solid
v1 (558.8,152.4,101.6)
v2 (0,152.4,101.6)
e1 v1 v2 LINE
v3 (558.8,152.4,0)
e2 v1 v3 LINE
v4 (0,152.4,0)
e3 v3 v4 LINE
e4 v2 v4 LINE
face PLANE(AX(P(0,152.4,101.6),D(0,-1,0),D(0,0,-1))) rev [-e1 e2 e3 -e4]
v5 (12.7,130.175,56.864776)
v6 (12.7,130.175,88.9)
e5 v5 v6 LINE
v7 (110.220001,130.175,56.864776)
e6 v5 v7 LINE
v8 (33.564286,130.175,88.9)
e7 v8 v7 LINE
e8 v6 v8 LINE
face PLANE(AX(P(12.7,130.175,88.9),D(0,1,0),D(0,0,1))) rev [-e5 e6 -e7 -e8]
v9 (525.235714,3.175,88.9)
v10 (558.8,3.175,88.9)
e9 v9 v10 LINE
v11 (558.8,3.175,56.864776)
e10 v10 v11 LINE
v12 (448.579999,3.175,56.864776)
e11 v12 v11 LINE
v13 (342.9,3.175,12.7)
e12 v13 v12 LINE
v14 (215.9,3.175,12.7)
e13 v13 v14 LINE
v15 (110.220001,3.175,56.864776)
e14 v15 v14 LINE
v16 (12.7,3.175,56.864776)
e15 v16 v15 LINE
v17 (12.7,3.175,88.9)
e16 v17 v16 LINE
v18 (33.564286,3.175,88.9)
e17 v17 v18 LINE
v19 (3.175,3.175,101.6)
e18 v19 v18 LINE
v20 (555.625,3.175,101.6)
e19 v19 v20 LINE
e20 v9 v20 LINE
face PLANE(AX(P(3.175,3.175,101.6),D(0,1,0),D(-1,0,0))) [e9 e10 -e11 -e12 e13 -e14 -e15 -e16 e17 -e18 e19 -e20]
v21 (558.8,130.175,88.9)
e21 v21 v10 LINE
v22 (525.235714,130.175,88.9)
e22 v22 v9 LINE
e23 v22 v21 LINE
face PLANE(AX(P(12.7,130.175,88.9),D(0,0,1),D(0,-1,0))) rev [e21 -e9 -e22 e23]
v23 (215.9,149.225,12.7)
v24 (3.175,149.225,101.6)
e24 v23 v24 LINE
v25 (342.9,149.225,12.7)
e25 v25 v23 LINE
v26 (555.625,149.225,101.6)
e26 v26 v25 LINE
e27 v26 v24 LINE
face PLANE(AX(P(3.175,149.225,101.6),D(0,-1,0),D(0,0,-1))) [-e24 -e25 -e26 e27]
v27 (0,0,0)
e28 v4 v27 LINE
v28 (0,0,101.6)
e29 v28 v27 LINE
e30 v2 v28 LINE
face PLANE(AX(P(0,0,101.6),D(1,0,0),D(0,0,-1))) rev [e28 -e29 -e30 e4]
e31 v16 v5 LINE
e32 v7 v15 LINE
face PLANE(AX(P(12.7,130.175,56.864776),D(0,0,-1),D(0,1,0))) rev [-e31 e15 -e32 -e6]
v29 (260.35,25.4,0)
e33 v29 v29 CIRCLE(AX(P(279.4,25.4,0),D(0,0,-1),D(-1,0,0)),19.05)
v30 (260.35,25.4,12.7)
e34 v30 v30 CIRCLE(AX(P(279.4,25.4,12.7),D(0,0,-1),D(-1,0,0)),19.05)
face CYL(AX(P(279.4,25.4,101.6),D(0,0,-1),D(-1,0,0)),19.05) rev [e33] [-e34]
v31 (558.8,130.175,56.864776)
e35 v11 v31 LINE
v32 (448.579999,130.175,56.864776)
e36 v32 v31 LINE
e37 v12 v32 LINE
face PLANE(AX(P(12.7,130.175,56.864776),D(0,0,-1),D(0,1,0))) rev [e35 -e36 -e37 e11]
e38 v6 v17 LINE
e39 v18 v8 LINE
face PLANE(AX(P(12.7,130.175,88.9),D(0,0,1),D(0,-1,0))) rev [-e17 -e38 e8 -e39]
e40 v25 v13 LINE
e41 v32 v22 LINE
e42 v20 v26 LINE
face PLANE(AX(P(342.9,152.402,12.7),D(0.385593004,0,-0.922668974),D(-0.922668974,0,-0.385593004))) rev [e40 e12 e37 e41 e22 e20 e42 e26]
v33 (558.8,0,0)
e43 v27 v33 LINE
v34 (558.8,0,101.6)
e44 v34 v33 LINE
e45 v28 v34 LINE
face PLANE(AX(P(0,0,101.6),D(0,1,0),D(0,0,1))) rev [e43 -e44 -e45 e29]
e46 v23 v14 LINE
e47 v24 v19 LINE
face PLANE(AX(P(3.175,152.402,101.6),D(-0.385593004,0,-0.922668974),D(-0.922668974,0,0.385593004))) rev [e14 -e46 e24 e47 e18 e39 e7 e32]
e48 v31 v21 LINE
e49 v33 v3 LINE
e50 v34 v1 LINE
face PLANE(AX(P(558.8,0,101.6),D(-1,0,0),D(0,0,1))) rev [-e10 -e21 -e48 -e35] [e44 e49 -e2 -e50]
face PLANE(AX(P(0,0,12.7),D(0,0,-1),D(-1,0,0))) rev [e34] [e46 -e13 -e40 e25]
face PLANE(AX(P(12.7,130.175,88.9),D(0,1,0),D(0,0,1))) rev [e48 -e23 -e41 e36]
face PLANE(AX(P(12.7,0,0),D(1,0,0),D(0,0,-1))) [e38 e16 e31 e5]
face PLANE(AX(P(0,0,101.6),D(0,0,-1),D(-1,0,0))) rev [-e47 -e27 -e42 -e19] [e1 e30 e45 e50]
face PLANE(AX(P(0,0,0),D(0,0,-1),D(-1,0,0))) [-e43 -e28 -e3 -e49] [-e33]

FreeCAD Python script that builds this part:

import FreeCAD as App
import Part
import Sketcher
Q = App.Units.Quantity

doc = App.newDocument("Part")
body = doc.addObject("PartDesign::Body", "Body")

# Sketch on XY plane
sketch1 = body.newObject("Sketcher::SketchObject", "Sketch")
sketch1.AttachmentSupport = (doc.getObject("XY_Plane"), [""])
sketch1.MapMode = "FlatFace"
sketch1.addGeometry(Part.LineSegment(App.Vector(0, 152, 0), App.Vector(0, 0, 0)), False)
sketch1.addGeometry(Part.LineSegment(App.Vector(0, 0, 0), App.Vector(559, 0, 0)), False)
sketch1.addGeometry(Part.LineSegment(App.Vector(559, 0, 0), App.Vector(559, 152, 0)), False)
sketch1.addGeometry(Part.LineSegment(App.Vector(559, 152, 0), App.Vector(0, 152, 0)), False)
sketch1.addGeometry(Part.LineSegment(App.Vector(556, 3, 0), App.Vector(3, 3, 0)), False)
sketch1.addGeometry(Part.LineSegment(App.Vector(3, 3, 0), App.Vector(3, 149, 0)), False)
sketch1.addGeometry(Part.LineSegment(App.Vector(3, 149, 0), App.Vector(556, 149, 0)), False)
sketch1.addGeometry(Part.LineSegment(App.Vector(556, 149, 0), App.Vector(556, 3, 0)), False)
sketch1.addConstraint(Sketcher.Constraint("Coincident", 0, 2, 1, 1))
sketch1.addConstraint(Sketcher.Constraint("Coincident", 1, 2, 2, 1))
sketch1.addConstraint(Sketcher.Constraint("Coincident", 2, 2, 3, 1))
sketch1.addConstraint(Sketcher.Constraint("Coincident", 3, 2, 0, 1))
sketch1.addConstraint(Sketcher.Constraint("Coincident", 4, 2, 5, 1))
sketch1.addConstraint(Sketcher.Constraint("Coincident", 5, 2, 6, 1))
sketch1.addConstraint(Sketcher.Constraint("Coincident", 6, 2, 7, 1))
sketch1.addConstraint(Sketcher.Constraint("Coincident", 7, 2, 4, 1))
sketch1.addConstraint(Sketcher.Constraint("Vertical", 0))
sketch1.addConstraint(Sketcher.Constraint("Horizontal", 1))
sketch1.addConstraint(Sketcher.Constraint("Vertical", 2))
sketch1.addConstraint(Sketcher.Constraint("Horizontal", 3))
sketch1.addConstraint(Sketcher.Constraint("Horizontal", 4))
sketch1.addConstraint(Sketcher.Constraint("Vertical", 5))
sketch1.addConstraint(Sketcher.Constraint("Horizontal", 6))
sketch1.addConstraint(Sketcher.Constraint("Vertical", 7))
sketch1.addConstraint(Sketcher.Constraint("Coincident", 0, 2, -1, 1))
sketch1.addConstraint(Sketcher.Constraint("DistanceX", 1, 1, 1, 2, Q("22 in")))
sketch1.addConstraint(Sketcher.Constraint("DistanceY", 0, 2, 0, 1, Q("6 in")))
sketch1.addConstraint(Sketcher.Constraint("DistanceX", 4, 2, 4, 1, Q("21.75 in")))
sketch1.addConstraint(Sketcher.Constraint("DistanceY", 5, 1, 5, 2, Q("5.75 in")))
sketch1.addConstraint(Sketcher.Constraint("DistanceX", -1, 1, 4, 2, Q("0.125 in")))
sketch1.addConstraint(Sketcher.Constraint("DistanceY", -1, 1, 4, 2, Q("0.125 in")))
pad1 = body.newObject("PartDesign::Pad", "Pad")
pad1.Profile = sketch1
pad1.Length = Q("4 in")

# Sketch on XZ plane
sketch2 = body.newObject("Sketcher::SketchObject", "Sketch001")
sketch2.AttachmentSupport = (doc.getObject("XZ_Plane"), [""])
sketch2.MapMode = "FlatFace"
sketch2.AttachmentOffset = App.Placement(App.Vector(0, 0, -0.125 * 25.4), App.Rotation())
sketch2.addGeometry(Part.LineSegment(App.Vector(3, 102, 0), App.Vector(216, 13, 0)), False)
sketch2.addGeometry(Part.LineSegment(App.Vector(216, 13, 0), App.Vector(3, 13, 0)), False)
sketch2.addGeometry(Part.LineSegment(App.Vector(3, 13, 0), App.Vector(3, 102, 0)), False)
sketch2.addConstraint(Sketcher.Constraint("Coincident", 0, 2, 1, 1))
sketch2.addConstraint(Sketcher.Constraint("Coincident", 1, 2, 2, 1))
sketch2.addConstraint(Sketcher.Constraint("Coincident", 2, 2, 0, 1))
sketch2.addConstraint(Sketcher.Constraint("Horizontal", 1))
sketch2.addConstraint(Sketcher.Constraint("Vertical", 2))
sketch2.addConstraint(Sketcher.Constraint("DistanceY", 2, 1, 2, 2, Q("3.5 in")))
sketch2.addConstraint(Sketcher.Constraint("DistanceY", -1, 1, 2, 2, Q("4 in")))
sketch2.addConstraint(Sketcher.Constraint("DistanceX", -1, 1, 0, 2, Q("8.5 in")))
sketch2.addConstraint(Sketcher.Constraint("DistanceX", 1, 2, 1, 1, Q("8.375 in")))
pad2 = body.newObject("PartDesign::Pad", "Pad001")
pad2.Profile = sketch2
pad2.Type = "UpToFirst"
pad2.Reversed = True

# Sketch on XZ plane
sketch3 = body.newObject("Sketcher::SketchObject", "Sketch002")
sketch3.AttachmentSupport = (doc.getObject("XZ_Plane"), [""])
sketch3.MapMode = "FlatFace"
sketch3.AttachmentOffset = App.Placement(App.Vector(0, 0, -0.125 * 25.4), App.Rotation())
sketch3.addGeometry(Part.LineSegment(App.Vector(343, 13, 0), App.Vector(556, 102, 0)), False)
sketch3.addGeometry(Part.LineSegment(App.Vector(556, 102, 0), App.Vector(556, 13, 0)), False)
sketch3.addGeometry(Part.LineSegment(App.Vector(556, 13, 0), App.Vector(343, 13, 0)), False)
sketch3.addConstraint(Sketcher.Constraint("Coincident", 0, 2, 1, 1))
sketch3.addConstraint(Sketcher.Constraint("Coincident", 1, 2, 2, 1))
sketch3.addConstraint(Sketcher.Constraint("Coincident", 2, 2, 0, 1))
sketch3.addConstraint(Sketcher.Constraint("Vertical", 1))
sketch3.addConstraint(Sketcher.Constraint("Horizontal", 2))
sketch3.addConstraint(Sketcher.Constraint("DistanceY", 1, 2, 1, 1, Q("3.5 in")))
sketch3.addConstraint(Sketcher.Constraint("DistanceY", -1, 1, 0, 2, Q("4 in")))
sketch3.addConstraint(Sketcher.Constraint("DistanceX", -1, 1, 2, 2, Q("13.5 in")))
sketch3.addConstraint(Sketcher.Constraint("DistanceX", 2, 2, 2, 1, Q("8.375 in")))
pad3 = body.newObject("PartDesign::Pad", "Pad002")
pad3.Profile = sketch3
pad3.Type = "UpToFirst"
pad3.Reversed = True

# Sketch on XY plane
sketch4 = body.newObject("Sketcher::SketchObject", "Sketch003")
sketch4.AttachmentSupport = (doc.getObject("XY_Plane"), [""])
sketch4.MapMode = "FlatFace"
sketch4.AttachmentOffset = App.Placement(App.Vector(0, 0, 0.5 * 25.4), App.Rotation())
sketch4.addGeometry(Part.LineSegment(App.Vector(556, 149, 0), App.Vector(556, 3, 0)), False)
sketch4.addGeometry(Part.LineSegment(App.Vector(556, 3, 0), App.Vector(3, 3, 0)), False)
sketch4.addGeometry(Part.LineSegment(App.Vector(3, 3, 0), App.Vector(3, 149, 0)), False)
sketch4.addGeometry(Part.LineSegment(App.Vector(3, 149, 0), App.Vector(556, 149, 0)), False)
sketch4.addConstraint(Sketcher.Constraint("Coincident", 0, 2, 1, 1))
sketch4.addConstraint(Sketcher.Constraint("Coincident", 1, 2, 2, 1))
sketch4.addConstraint(Sketcher.Constraint("Coincident", 2, 2, 3, 1))
sketch4.addConstraint(Sketcher.Constraint("Coincident", 3, 2, 0, 1))
sketch4.addConstraint(Sketcher.Constraint("Vertical", 0))
sketch4.addConstraint(Sketcher.Constraint("Horizontal", 1))
sketch4.addConstraint(Sketcher.Constraint("Vertical", 2))
sketch4.addConstraint(Sketcher.Constraint("Horizontal", 3))
sketch4.addConstraint(Sketcher.Constraint("DistanceX", 1, 2, 1, 1, Q("21.75 in")))
sketch4.addConstraint(Sketcher.Constraint("DistanceY", 0, 2, 0, 1, Q("5.75 in")))
sketch4.addConstraint(Sketcher.Constraint("DistanceX", -1, 1, 0, 2, Q("21.875 in")))
sketch4.addConstraint(Sketcher.Constraint("DistanceY", -1, 1, 0, 2, Q("0.125 in")))
pad4 = body.newObject("PartDesign::Pad", "Pad003")
pad4.Profile = sketch4
pad4.Length = Q("0.5 in")
pad4.Reversed = True

# Sketch on XY plane
sketch5 = body.newObject("Sketcher::SketchObject", "Sketch004")
sketch5.AttachmentSupport = (doc.getObject("XY_Plane"), [""])
sketch5.MapMode = "FlatFace"
sketch5.addGeometry(Part.Circle(App.Vector(279, 25, 0), App.Vector(0, 0, 1), 19), False)
sketch5.addConstraint(Sketcher.Constraint("Diameter", 0, Q("1.5 in")))
sketch5.addConstraint(Sketcher.Constraint("DistanceX", -1, 1, 0, 3, Q("11 in")))
sketch5.addConstraint(Sketcher.Constraint("DistanceY", -1, 1, 0, 3, Q("1 in")))
pocket1 = body.newObject("PartDesign::Pocket", "Pocket")
pocket1.Profile = sketch5
pocket1.Type = "ThroughAll"
pocket1.Reversed = True

# Sketch on YZ plane
sketch6 = body.newObject("Sketcher::SketchObject", "Sketch005")
sketch6.AttachmentSupport = (doc.getObject("YZ_Plane"), [""])
sketch6.MapMode = "FlatFace"
sketch6.AttachmentOffset = App.Placement(App.Vector(0, 0, 22 * 25.4), App.Rotation())
sketch6.addGeometry(Part.LineSegment(App.Vector(130, 89, 0), App.Vector(3, 89, 0)), False)
sketch6.addGeometry(Part.LineSegment(App.Vector(3, 89, 0), App.Vector(3, 57, 0)), False)
sketch6.addGeometry(Part.LineSegment(App.Vector(3, 57, 0), App.Vector(130, 57, 0)), False)
sketch6.addGeometry(Part.LineSegment(App.Vector(130, 57, 0), App.Vector(130, 89, 0)), False)
sketch6.addConstraint(Sketcher.Constraint("Coincident", 0, 2, 1, 1))
sketch6.addConstraint(Sketcher.Constraint("Coincident", 1, 2, 2, 1))
sketch6.addConstraint(Sketcher.Constraint("Coincident", 2, 2, 3, 1))
sketch6.addConstraint(Sketcher.Constraint("Coincident", 3, 2, 0, 1))
sketch6.addConstraint(Sketcher.Constraint("Horizontal", 0))
sketch6.addConstraint(Sketcher.Constraint("Vertical", 1))
sketch6.addConstraint(Sketcher.Constraint("Horizontal", 2))
sketch6.addConstraint(Sketcher.Constraint("Vertical", 3))
sketch6.addConstraint(Sketcher.Constraint("DistanceX", 0, 2, 0, 1, Q("5 in")))
sketch6.addConstraint(Sketcher.Constraint("DistanceY", -1, 1, 0, 2, Q("3.5 in")))
sketch6.addConstraint(Sketcher.Constraint("DistanceX", -1, 1, 0, 2, Q("0.125 in")))
sketch6.addConstraint(Sketcher.Constraint("DistanceY", 1, 2, 1, 1, 32.035224))
pocket2 = body.newObject("PartDesign::Pocket", "Pocket001")
pocket2.Profile = sketch6
pocket2.Length = Q("21.5 in")

doc.recompute()
